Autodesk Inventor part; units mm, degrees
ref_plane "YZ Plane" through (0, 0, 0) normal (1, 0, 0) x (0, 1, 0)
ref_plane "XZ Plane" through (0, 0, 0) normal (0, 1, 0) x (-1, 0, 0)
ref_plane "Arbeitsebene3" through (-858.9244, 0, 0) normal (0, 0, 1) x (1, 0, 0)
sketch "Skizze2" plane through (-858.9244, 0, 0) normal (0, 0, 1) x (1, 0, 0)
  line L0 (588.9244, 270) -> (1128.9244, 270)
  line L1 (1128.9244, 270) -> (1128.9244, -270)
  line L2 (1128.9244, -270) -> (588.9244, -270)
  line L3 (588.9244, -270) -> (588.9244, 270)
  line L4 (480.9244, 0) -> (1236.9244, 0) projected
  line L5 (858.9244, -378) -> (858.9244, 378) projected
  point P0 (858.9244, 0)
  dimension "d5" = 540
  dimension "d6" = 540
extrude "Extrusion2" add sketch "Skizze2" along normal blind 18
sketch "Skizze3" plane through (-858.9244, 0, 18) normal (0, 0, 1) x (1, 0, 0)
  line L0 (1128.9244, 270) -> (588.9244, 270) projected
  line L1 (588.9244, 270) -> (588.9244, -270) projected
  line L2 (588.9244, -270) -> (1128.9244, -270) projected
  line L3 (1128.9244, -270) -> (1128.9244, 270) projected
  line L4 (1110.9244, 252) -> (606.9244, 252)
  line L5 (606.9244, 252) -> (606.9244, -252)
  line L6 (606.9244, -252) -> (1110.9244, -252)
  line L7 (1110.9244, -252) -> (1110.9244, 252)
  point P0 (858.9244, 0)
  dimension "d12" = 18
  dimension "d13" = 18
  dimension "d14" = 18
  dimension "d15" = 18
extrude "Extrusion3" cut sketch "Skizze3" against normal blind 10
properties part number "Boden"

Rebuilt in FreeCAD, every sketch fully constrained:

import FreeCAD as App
import Part
import Sketcher

V = App.Vector
Q = App.Units.Quantity


def add_polygon(sketch, points):
    """Adds a closed chain of lines whose ends are joined by coincident constraints."""
    first, n = sketch.GeometryCount, len(points)
    for a, b in zip(points, points[1:] + points[:1]):
        sketch.addGeometry(Part.LineSegment(App.Vector(*a, 0), App.Vector(*b, 0)), False)
    for i in range(n):
        sketch.addConstraint(Sketcher.Constraint("Coincident", first + i, 2, first + (i + 1) % n, 1))

doc = App.newDocument("Part")
body = doc.addObject("PartDesign::Body", "Body")

sketch1 = body.newObject("Sketcher::SketchObject", "Sketch")
sketch1.AttachmentSupport = (doc.getObject("XY_Plane"), [""])
sketch1.MapMode = "FlatFace"
add_polygon(sketch1, [(-270, 270), (-270, -270), (270, -270), (270, 270)])
sketch1.addConstraint([
    Sketcher.Constraint("Vertical", 0),
    Sketcher.Constraint("Horizontal", 1),
    Sketcher.Constraint("Vertical", 2),
    Sketcher.Constraint("Horizontal", 3),
    Sketcher.Constraint("Symmetric", 0, 2, 2, 2, -1, 1),
    Sketcher.Constraint("Equal", 3, 0),
    Sketcher.Constraint("DistanceX", 1, 1, 1, 2, Q("540 mm")),
])
pad1 = body.newObject("PartDesign::Pad", "Pad")
pad1.Profile = sketch1
pad1.Length = 18

sketch2 = body.newObject("Sketcher::SketchObject", "Sketch001")
sketch2.AttachmentSupport = (doc.getObject("XY_Plane"), [""])
sketch2.MapMode = "FlatFace"
sketch2.AttachmentOffset = App.Placement(V(0, 0, 18), App.Rotation())
add_polygon(sketch2, [(270, -270), (270, 270), (-270, 270), (-270, -270)])
add_polygon(sketch2, [(-252, 252), (252, 252), (252, -252), (-252, -252)])
sketch2.addConstraint([
    Sketcher.Constraint("Vertical", 0),
    Sketcher.Constraint("Horizontal", 1),
    Sketcher.Constraint("Vertical", 2),
    Sketcher.Constraint("Horizontal", 3),
    Sketcher.Constraint("Horizontal", 4),
    Sketcher.Constraint("Vertical", 5),
    Sketcher.Constraint("Horizontal", 6),
    Sketcher.Constraint("Vertical", 7),
    Sketcher.Constraint("Symmetric", 0, 2, 2, 2, -1, 1),
    Sketcher.Constraint("Symmetric", 4, 2, 6, 2, -1, 1),
    Sketcher.Constraint("Equal", 3, 0),
    Sketcher.Constraint("Equal", 6, 5),
    Sketcher.Constraint("DistanceX", 4, 2, 0, 2, Q("18 mm")),
    Sketcher.Constraint("DistanceX", 1, 2, 1, 1, Q("540 mm")),
])
pocket1 = body.newObject("PartDesign::Pocket", "Pocket")
pocket1.Profile = sketch2
pocket1.Length = 10

doc.recompute()
